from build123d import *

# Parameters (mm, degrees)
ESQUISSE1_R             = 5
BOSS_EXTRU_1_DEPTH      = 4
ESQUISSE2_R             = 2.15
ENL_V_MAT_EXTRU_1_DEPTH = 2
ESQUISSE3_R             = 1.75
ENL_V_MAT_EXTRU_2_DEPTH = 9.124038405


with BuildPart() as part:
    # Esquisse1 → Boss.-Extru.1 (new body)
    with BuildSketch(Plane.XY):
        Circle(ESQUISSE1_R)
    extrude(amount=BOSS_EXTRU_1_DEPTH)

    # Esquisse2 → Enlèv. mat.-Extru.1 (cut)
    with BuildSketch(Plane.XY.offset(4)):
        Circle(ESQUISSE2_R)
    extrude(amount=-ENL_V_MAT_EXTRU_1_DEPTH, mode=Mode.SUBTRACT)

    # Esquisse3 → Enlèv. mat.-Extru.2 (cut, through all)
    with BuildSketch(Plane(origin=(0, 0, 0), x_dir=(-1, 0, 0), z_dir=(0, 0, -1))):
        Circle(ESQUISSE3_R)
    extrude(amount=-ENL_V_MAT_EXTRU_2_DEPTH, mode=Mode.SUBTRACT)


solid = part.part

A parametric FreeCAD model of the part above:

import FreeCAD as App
import Part
import Sketcher
from FreeCAD import Vector

doc = App.newDocument("Part")
body = doc.addObject("PartDesign::Body", "Body")

# Sketch on XY plane
sketch1 = body.newObject("Sketcher::SketchObject", "Sketch")
sketch1.AttachmentSupport = (doc.getObject("XY_Plane"), [""])
sketch1.MapMode = "FlatFace"
sketch1.addGeometry(Part.Circle(Vector(0, 0, 0), Vector(0, 0, 1), 5), False)
sketch1.addConstraint([
    Sketcher.Constraint("Coincident", 0, 3, -1, 1),
    Sketcher.Constraint("Diameter", 0, 10.0),
])
pad1 = body.newObject("PartDesign::Pad", "Pad")
pad1.Profile = sketch1
pad1.Length = 4

# Sketch on XY plane
sketch2 = body.newObject("Sketcher::SketchObject", "Sketch001")
sketch2.AttachmentSupport = (doc.getObject("XY_Plane"), [""])
sketch2.MapMode = "FlatFace"
sketch2.AttachmentOffset = App.Placement(Vector(0, 0, 4), App.Rotation())
sketch2.addGeometry(Part.Circle(Vector(0, 0, 0), Vector(0, 0, 1), 2.1), False)
sketch2.addConstraint([
    Sketcher.Constraint("Coincident", 0, 3, -1, 1),
    Sketcher.Constraint("Diameter", 0, 4.3),
])
pocket1 = body.newObject("PartDesign::Pocket", "Pocket")
pocket1.Profile = sketch2
pocket1.Length = 2

# Sketch on XY plane
sketch3 = body.newObject("Sketcher::SketchObject", "Sketch002")
sketch3.AttachmentSupport = (doc.getObject("XY_Plane"), [""])
sketch3.MapMode = "FlatFace"
sketch3.addGeometry(Part.Circle(Vector(0, 0, 0), Vector(0, 0, 1), 1.8), False)
sketch3.addConstraint([
    Sketcher.Constraint("Coincident", 0, 3, -1, 1),
    Sketcher.Constraint("Diameter", 0, 3.5),
])
pocket2 = body.newObject("PartDesign::Pocket", "Pocket001")
pocket2.Profile = sketch3
pocket2.Type = "ThroughAll"
pocket2.Reversed = True

doc.recompute()
